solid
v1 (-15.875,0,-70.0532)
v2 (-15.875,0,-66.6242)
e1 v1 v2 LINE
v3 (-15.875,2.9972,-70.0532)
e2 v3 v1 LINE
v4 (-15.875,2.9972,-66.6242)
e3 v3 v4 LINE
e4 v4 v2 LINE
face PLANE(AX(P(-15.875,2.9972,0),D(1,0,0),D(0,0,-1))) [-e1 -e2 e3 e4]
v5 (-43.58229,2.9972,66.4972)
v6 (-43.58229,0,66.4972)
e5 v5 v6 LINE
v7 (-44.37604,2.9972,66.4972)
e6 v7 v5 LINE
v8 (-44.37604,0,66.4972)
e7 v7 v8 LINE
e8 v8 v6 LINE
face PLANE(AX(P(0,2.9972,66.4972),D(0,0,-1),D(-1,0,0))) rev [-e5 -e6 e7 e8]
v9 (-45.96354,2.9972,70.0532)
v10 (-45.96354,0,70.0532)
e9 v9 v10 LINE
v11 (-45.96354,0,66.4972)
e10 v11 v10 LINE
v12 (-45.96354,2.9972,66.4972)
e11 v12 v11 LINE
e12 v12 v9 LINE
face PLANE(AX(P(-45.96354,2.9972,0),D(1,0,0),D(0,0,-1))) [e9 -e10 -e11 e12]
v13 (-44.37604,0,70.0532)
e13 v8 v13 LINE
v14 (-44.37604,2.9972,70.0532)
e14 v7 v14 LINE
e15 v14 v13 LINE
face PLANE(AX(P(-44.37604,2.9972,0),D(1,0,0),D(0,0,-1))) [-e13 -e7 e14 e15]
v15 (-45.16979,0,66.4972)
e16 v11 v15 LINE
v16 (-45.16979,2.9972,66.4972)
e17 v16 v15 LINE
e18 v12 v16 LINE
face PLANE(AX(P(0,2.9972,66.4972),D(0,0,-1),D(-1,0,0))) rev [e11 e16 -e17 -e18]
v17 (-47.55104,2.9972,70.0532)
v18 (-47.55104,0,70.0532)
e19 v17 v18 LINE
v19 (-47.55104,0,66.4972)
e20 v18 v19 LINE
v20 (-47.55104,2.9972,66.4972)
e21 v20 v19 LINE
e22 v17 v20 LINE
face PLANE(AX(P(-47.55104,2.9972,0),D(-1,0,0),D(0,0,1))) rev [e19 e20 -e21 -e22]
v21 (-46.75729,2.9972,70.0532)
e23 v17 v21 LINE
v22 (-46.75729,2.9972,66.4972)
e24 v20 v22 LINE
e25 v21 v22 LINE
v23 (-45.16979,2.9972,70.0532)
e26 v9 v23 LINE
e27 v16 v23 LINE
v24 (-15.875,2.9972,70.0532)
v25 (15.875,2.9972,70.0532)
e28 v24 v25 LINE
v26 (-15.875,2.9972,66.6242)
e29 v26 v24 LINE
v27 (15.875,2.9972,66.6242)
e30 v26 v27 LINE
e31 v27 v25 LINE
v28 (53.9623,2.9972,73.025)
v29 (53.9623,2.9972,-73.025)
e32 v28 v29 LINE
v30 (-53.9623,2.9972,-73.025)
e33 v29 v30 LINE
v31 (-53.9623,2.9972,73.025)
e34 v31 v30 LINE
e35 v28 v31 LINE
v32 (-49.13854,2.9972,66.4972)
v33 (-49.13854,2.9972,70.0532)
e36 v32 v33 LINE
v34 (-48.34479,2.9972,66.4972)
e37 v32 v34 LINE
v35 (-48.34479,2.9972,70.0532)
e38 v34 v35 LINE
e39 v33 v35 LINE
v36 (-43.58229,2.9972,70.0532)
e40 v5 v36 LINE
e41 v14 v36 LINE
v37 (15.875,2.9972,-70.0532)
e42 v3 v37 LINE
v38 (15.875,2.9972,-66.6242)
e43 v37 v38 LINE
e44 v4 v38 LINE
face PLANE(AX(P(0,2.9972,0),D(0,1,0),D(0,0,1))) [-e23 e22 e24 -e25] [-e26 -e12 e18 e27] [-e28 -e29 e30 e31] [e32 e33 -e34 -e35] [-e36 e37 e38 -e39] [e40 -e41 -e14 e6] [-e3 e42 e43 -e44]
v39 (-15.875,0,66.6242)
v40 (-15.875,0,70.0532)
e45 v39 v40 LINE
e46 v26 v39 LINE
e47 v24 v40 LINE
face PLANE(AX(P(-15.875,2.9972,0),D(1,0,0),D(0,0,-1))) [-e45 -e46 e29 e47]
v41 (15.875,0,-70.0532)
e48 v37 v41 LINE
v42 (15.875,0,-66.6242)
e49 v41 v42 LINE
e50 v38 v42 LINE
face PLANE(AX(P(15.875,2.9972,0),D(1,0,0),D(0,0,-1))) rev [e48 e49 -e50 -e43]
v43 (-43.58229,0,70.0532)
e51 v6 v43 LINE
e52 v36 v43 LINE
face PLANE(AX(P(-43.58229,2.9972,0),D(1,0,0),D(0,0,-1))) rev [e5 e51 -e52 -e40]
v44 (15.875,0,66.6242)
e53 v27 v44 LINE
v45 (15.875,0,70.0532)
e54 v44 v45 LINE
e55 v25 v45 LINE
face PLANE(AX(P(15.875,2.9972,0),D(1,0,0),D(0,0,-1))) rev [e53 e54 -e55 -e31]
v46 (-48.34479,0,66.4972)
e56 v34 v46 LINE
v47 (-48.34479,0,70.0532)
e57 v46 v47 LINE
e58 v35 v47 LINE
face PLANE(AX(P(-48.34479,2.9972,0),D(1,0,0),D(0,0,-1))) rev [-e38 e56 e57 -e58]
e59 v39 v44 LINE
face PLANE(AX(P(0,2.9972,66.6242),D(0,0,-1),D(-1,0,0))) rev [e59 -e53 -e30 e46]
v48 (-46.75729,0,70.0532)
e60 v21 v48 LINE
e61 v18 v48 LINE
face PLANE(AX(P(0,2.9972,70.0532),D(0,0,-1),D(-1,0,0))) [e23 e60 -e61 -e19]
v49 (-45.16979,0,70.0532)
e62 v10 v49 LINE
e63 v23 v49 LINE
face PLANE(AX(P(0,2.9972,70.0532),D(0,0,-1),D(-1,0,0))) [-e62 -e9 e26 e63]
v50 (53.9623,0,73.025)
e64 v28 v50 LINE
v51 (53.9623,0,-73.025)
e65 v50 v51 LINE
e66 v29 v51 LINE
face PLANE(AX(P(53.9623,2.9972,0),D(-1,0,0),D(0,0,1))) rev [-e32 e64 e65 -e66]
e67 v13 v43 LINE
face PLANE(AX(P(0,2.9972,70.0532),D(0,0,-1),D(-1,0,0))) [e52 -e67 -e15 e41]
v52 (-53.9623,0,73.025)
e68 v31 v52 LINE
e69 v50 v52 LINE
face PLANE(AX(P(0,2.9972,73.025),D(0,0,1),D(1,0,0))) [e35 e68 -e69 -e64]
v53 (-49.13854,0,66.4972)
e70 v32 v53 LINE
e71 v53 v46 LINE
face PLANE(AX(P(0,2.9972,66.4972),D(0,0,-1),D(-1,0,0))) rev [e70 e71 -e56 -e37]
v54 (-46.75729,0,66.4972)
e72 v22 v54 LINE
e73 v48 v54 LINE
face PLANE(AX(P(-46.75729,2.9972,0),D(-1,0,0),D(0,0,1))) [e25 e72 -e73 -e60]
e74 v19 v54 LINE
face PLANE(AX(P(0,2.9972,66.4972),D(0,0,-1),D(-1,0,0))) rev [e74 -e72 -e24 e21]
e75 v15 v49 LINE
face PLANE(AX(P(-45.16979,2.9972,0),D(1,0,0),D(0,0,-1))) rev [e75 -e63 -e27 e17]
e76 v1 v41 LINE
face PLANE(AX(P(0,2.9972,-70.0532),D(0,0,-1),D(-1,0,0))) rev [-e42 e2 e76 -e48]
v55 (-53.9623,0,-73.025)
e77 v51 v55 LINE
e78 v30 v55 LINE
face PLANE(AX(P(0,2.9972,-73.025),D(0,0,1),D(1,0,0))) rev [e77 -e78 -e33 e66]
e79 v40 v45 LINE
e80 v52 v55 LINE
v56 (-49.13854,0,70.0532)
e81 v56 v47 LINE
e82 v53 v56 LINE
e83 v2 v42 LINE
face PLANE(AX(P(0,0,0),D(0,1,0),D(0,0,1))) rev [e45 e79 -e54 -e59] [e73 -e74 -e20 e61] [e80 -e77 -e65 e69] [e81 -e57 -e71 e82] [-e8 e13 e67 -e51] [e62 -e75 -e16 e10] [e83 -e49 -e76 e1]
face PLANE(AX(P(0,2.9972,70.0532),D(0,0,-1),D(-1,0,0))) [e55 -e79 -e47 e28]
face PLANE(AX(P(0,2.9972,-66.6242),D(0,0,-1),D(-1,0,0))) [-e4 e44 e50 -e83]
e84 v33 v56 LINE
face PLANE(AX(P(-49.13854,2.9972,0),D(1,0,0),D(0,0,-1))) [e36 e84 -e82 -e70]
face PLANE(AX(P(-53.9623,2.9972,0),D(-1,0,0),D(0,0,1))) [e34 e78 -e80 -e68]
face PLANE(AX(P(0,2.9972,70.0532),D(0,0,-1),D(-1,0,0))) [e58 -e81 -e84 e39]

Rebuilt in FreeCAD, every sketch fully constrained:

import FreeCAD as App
import Part
import Sketcher
Q = App.Units.Quantity


def add_polygon(sketch, points):
    """Adds a closed chain of lines whose ends are joined by coincident constraints."""
    first, n = sketch.GeometryCount, len(points)
    for a, b in zip(points, points[1:] + points[:1]):
        sketch.addGeometry(Part.LineSegment(App.Vector(*a, 0), App.Vector(*b, 0)), False)
    for i in range(n):
        sketch.addConstraint(Sketcher.Constraint("Coincident", first + i, 2, first + (i + 1) % n, 1))

doc = App.newDocument("Part")
body = doc.addObject("PartDesign::Body", "Body")

# Sketch on XZ plane
sketch1 = body.newObject("Sketcher::SketchObject", "Sketch")
sketch1.AttachmentSupport = (doc.getObject("XZ_Plane"), [""])
sketch1.MapMode = "FlatFace"
add_polygon(sketch1, [(-53.9623, -73.025), (-53.9623, 73.025), (53.9623, 73.025), (53.9623, -73.025)])  # lines 0-3
add_polygon(sketch1, [(-48.34479, 70.0532), (-49.13854, 70.0532), (-49.13854, 66.4972), (-48.34479, 66.4972)])  # lines 4-7
add_polygon(sketch1, [(-46.75729, 70.0532), (-47.55104, 70.0532), (-47.55104, 66.4972), (-46.75729, 66.4972)])  # lines 8-11
add_polygon(sketch1, [(-45.16979, 70.0532), (-45.96354, 70.0532), (-45.96354, 66.4972), (-45.16979, 66.4972)])  # lines 12-15
add_polygon(sketch1, [(-43.58229, 70.0532), (-44.37604, 70.0532), (-44.37604, 66.4972), (-43.58229, 66.4972)])  # lines 16-19
add_polygon(sketch1, [(15.875, 70.0532), (-15.875, 70.0532), (-15.875, 66.6242), (15.875, 66.6242)])  # lines 20-23
add_polygon(sketch1, [(15.875, -66.6242), (-15.875, -66.6242), (-15.875, -70.0532), (15.875, -70.0532)])  # lines 24-27
sketch1.addConstraint(Sketcher.Constraint("Vertical", 0))
sketch1.addConstraint(Sketcher.Constraint("Horizontal", 1))
sketch1.addConstraint(Sketcher.Constraint("Vertical", 2))
sketch1.addConstraint(Sketcher.Constraint("Horizontal", 3))
sketch1.addConstraint(Sketcher.Constraint("Horizontal", 4))
sketch1.addConstraint(Sketcher.Constraint("Vertical", 5))
sketch1.addConstraint(Sketcher.Constraint("Horizontal", 6))
sketch1.addConstraint(Sketcher.Constraint("Vertical", 7))
sketch1.addConstraint(Sketcher.Constraint("Horizontal", 8))
sketch1.addConstraint(Sketcher.Constraint("Vertical", 9))
sketch1.addConstraint(Sketcher.Constraint("Horizontal", 10))
sketch1.addConstraint(Sketcher.Constraint("Vertical", 11))
sketch1.addConstraint(Sketcher.Constraint("Horizontal", 12))
sketch1.addConstraint(Sketcher.Constraint("Vertical", 13))
sketch1.addConstraint(Sketcher.Constraint("Horizontal", 14))
sketch1.addConstraint(Sketcher.Constraint("Vertical", 15))
sketch1.addConstraint(Sketcher.Constraint("Horizontal", 16))
sketch1.addConstraint(Sketcher.Constraint("Vertical", 17))
sketch1.addConstraint(Sketcher.Constraint("Horizontal", 18))
sketch1.addConstraint(Sketcher.Constraint("Vertical", 19))
sketch1.addConstraint(Sketcher.Constraint("Horizontal", 20))
sketch1.addConstraint(Sketcher.Constraint("Vertical", 21))
sketch1.addConstraint(Sketcher.Constraint("Horizontal", 22))
sketch1.addConstraint(Sketcher.Constraint("Vertical", 23))
sketch1.addConstraint(Sketcher.Constraint("Horizontal", 24))
sketch1.addConstraint(Sketcher.Constraint("Vertical", 25))
sketch1.addConstraint(Sketcher.Constraint("Horizontal", 26))
sketch1.addConstraint(Sketcher.Constraint("Vertical", 27))
sketch1.addConstraint(Sketcher.Constraint("Symmetric", 0, 2, 2, 2, -1, 1))
sketch1.addConstraint(Sketcher.Constraint("Symmetric", 22, 2, 24, 2, -1, 1))
sketch1.addConstraint(Sketcher.Constraint("Symmetric", 20, 2, 26, 2, -1, 1))
sketch1.addConstraint(Sketcher.Constraint("Horizontal", 7, 2, 8, 2))
sketch1.addConstraint(Sketcher.Constraint("Horizontal", 6, 2, 9, 2))
sketch1.addConstraint(Sketcher.Constraint("Horizontal", 11, 2, 12, 2))
sketch1.addConstraint(Sketcher.Constraint("Horizontal", 10, 2, 13, 2))
sketch1.addConstraint(Sketcher.Constraint("Horizontal", 15, 2, 16, 2))
sketch1.addConstraint(Sketcher.Constraint("Horizontal", 14, 2, 17, 2))
sketch1.addConstraint(Sketcher.Constraint("Horizontal", 19, 2, 20, 2))
sketch1.addConstraint(Sketcher.Constraint("Vertical", 21, 2, 24, 2))
sketch1.addConstraint(Sketcher.Constraint("Equal", 6, 8))
sketch1.addConstraint(Sketcher.Constraint("Equal", 10, 12))
sketch1.addConstraint(Sketcher.Constraint("Equal", 14, 16))
sketch1.addConstraint(Sketcher.Constraint("DistanceX", 20, 2, 20, 1, Q("1.25 in")))
sketch1.addConstraint(Sketcher.Constraint("DistanceY", 0, 1, 0, 2, Q("5.75 in")))
sketch1.addConstraint(Sketcher.Constraint("DistanceY", 5, 2, 5, 1, Q("0.14 in")))
sketch1.addConstraint(Sketcher.Constraint("DistanceX", 1, 1, 1, 2, Q("4.249 in")))
sketch1.addConstraint(Sketcher.Constraint("DistanceX", 4, 2, 4, 1, Q("0.03125 in")))
sketch1.addConstraint(Sketcher.Constraint("DistanceY", 21, 2, 21, 1, Q("0.135 in")))
sketch1.addConstraint(Sketcher.Constraint("DistanceY", -1, 1, 4, 2, Q("2.758 in")))
sketch1.addConstraint(Sketcher.Constraint("DistanceX", 7, 2, 8, 2, Q("0.03125 in")))
sketch1.addConstraint(Sketcher.Constraint("DistanceX", 11, 2, 12, 2, Q("0.03125 in")))
sketch1.addConstraint(Sketcher.Constraint("DistanceX", 15, 2, 16, 2, Q("0.03125 in")))
sketch1.addConstraint(Sketcher.Constraint("DistanceX", 4, 2, -1, 1, Q("49.13854 mm")))
pad1 = body.newObject("PartDesign::Pad", "Pad")
pad1.Profile = sketch1
pad1.Length = Q("0.118 in")
pad1.Reversed = True

doc.recompute()
